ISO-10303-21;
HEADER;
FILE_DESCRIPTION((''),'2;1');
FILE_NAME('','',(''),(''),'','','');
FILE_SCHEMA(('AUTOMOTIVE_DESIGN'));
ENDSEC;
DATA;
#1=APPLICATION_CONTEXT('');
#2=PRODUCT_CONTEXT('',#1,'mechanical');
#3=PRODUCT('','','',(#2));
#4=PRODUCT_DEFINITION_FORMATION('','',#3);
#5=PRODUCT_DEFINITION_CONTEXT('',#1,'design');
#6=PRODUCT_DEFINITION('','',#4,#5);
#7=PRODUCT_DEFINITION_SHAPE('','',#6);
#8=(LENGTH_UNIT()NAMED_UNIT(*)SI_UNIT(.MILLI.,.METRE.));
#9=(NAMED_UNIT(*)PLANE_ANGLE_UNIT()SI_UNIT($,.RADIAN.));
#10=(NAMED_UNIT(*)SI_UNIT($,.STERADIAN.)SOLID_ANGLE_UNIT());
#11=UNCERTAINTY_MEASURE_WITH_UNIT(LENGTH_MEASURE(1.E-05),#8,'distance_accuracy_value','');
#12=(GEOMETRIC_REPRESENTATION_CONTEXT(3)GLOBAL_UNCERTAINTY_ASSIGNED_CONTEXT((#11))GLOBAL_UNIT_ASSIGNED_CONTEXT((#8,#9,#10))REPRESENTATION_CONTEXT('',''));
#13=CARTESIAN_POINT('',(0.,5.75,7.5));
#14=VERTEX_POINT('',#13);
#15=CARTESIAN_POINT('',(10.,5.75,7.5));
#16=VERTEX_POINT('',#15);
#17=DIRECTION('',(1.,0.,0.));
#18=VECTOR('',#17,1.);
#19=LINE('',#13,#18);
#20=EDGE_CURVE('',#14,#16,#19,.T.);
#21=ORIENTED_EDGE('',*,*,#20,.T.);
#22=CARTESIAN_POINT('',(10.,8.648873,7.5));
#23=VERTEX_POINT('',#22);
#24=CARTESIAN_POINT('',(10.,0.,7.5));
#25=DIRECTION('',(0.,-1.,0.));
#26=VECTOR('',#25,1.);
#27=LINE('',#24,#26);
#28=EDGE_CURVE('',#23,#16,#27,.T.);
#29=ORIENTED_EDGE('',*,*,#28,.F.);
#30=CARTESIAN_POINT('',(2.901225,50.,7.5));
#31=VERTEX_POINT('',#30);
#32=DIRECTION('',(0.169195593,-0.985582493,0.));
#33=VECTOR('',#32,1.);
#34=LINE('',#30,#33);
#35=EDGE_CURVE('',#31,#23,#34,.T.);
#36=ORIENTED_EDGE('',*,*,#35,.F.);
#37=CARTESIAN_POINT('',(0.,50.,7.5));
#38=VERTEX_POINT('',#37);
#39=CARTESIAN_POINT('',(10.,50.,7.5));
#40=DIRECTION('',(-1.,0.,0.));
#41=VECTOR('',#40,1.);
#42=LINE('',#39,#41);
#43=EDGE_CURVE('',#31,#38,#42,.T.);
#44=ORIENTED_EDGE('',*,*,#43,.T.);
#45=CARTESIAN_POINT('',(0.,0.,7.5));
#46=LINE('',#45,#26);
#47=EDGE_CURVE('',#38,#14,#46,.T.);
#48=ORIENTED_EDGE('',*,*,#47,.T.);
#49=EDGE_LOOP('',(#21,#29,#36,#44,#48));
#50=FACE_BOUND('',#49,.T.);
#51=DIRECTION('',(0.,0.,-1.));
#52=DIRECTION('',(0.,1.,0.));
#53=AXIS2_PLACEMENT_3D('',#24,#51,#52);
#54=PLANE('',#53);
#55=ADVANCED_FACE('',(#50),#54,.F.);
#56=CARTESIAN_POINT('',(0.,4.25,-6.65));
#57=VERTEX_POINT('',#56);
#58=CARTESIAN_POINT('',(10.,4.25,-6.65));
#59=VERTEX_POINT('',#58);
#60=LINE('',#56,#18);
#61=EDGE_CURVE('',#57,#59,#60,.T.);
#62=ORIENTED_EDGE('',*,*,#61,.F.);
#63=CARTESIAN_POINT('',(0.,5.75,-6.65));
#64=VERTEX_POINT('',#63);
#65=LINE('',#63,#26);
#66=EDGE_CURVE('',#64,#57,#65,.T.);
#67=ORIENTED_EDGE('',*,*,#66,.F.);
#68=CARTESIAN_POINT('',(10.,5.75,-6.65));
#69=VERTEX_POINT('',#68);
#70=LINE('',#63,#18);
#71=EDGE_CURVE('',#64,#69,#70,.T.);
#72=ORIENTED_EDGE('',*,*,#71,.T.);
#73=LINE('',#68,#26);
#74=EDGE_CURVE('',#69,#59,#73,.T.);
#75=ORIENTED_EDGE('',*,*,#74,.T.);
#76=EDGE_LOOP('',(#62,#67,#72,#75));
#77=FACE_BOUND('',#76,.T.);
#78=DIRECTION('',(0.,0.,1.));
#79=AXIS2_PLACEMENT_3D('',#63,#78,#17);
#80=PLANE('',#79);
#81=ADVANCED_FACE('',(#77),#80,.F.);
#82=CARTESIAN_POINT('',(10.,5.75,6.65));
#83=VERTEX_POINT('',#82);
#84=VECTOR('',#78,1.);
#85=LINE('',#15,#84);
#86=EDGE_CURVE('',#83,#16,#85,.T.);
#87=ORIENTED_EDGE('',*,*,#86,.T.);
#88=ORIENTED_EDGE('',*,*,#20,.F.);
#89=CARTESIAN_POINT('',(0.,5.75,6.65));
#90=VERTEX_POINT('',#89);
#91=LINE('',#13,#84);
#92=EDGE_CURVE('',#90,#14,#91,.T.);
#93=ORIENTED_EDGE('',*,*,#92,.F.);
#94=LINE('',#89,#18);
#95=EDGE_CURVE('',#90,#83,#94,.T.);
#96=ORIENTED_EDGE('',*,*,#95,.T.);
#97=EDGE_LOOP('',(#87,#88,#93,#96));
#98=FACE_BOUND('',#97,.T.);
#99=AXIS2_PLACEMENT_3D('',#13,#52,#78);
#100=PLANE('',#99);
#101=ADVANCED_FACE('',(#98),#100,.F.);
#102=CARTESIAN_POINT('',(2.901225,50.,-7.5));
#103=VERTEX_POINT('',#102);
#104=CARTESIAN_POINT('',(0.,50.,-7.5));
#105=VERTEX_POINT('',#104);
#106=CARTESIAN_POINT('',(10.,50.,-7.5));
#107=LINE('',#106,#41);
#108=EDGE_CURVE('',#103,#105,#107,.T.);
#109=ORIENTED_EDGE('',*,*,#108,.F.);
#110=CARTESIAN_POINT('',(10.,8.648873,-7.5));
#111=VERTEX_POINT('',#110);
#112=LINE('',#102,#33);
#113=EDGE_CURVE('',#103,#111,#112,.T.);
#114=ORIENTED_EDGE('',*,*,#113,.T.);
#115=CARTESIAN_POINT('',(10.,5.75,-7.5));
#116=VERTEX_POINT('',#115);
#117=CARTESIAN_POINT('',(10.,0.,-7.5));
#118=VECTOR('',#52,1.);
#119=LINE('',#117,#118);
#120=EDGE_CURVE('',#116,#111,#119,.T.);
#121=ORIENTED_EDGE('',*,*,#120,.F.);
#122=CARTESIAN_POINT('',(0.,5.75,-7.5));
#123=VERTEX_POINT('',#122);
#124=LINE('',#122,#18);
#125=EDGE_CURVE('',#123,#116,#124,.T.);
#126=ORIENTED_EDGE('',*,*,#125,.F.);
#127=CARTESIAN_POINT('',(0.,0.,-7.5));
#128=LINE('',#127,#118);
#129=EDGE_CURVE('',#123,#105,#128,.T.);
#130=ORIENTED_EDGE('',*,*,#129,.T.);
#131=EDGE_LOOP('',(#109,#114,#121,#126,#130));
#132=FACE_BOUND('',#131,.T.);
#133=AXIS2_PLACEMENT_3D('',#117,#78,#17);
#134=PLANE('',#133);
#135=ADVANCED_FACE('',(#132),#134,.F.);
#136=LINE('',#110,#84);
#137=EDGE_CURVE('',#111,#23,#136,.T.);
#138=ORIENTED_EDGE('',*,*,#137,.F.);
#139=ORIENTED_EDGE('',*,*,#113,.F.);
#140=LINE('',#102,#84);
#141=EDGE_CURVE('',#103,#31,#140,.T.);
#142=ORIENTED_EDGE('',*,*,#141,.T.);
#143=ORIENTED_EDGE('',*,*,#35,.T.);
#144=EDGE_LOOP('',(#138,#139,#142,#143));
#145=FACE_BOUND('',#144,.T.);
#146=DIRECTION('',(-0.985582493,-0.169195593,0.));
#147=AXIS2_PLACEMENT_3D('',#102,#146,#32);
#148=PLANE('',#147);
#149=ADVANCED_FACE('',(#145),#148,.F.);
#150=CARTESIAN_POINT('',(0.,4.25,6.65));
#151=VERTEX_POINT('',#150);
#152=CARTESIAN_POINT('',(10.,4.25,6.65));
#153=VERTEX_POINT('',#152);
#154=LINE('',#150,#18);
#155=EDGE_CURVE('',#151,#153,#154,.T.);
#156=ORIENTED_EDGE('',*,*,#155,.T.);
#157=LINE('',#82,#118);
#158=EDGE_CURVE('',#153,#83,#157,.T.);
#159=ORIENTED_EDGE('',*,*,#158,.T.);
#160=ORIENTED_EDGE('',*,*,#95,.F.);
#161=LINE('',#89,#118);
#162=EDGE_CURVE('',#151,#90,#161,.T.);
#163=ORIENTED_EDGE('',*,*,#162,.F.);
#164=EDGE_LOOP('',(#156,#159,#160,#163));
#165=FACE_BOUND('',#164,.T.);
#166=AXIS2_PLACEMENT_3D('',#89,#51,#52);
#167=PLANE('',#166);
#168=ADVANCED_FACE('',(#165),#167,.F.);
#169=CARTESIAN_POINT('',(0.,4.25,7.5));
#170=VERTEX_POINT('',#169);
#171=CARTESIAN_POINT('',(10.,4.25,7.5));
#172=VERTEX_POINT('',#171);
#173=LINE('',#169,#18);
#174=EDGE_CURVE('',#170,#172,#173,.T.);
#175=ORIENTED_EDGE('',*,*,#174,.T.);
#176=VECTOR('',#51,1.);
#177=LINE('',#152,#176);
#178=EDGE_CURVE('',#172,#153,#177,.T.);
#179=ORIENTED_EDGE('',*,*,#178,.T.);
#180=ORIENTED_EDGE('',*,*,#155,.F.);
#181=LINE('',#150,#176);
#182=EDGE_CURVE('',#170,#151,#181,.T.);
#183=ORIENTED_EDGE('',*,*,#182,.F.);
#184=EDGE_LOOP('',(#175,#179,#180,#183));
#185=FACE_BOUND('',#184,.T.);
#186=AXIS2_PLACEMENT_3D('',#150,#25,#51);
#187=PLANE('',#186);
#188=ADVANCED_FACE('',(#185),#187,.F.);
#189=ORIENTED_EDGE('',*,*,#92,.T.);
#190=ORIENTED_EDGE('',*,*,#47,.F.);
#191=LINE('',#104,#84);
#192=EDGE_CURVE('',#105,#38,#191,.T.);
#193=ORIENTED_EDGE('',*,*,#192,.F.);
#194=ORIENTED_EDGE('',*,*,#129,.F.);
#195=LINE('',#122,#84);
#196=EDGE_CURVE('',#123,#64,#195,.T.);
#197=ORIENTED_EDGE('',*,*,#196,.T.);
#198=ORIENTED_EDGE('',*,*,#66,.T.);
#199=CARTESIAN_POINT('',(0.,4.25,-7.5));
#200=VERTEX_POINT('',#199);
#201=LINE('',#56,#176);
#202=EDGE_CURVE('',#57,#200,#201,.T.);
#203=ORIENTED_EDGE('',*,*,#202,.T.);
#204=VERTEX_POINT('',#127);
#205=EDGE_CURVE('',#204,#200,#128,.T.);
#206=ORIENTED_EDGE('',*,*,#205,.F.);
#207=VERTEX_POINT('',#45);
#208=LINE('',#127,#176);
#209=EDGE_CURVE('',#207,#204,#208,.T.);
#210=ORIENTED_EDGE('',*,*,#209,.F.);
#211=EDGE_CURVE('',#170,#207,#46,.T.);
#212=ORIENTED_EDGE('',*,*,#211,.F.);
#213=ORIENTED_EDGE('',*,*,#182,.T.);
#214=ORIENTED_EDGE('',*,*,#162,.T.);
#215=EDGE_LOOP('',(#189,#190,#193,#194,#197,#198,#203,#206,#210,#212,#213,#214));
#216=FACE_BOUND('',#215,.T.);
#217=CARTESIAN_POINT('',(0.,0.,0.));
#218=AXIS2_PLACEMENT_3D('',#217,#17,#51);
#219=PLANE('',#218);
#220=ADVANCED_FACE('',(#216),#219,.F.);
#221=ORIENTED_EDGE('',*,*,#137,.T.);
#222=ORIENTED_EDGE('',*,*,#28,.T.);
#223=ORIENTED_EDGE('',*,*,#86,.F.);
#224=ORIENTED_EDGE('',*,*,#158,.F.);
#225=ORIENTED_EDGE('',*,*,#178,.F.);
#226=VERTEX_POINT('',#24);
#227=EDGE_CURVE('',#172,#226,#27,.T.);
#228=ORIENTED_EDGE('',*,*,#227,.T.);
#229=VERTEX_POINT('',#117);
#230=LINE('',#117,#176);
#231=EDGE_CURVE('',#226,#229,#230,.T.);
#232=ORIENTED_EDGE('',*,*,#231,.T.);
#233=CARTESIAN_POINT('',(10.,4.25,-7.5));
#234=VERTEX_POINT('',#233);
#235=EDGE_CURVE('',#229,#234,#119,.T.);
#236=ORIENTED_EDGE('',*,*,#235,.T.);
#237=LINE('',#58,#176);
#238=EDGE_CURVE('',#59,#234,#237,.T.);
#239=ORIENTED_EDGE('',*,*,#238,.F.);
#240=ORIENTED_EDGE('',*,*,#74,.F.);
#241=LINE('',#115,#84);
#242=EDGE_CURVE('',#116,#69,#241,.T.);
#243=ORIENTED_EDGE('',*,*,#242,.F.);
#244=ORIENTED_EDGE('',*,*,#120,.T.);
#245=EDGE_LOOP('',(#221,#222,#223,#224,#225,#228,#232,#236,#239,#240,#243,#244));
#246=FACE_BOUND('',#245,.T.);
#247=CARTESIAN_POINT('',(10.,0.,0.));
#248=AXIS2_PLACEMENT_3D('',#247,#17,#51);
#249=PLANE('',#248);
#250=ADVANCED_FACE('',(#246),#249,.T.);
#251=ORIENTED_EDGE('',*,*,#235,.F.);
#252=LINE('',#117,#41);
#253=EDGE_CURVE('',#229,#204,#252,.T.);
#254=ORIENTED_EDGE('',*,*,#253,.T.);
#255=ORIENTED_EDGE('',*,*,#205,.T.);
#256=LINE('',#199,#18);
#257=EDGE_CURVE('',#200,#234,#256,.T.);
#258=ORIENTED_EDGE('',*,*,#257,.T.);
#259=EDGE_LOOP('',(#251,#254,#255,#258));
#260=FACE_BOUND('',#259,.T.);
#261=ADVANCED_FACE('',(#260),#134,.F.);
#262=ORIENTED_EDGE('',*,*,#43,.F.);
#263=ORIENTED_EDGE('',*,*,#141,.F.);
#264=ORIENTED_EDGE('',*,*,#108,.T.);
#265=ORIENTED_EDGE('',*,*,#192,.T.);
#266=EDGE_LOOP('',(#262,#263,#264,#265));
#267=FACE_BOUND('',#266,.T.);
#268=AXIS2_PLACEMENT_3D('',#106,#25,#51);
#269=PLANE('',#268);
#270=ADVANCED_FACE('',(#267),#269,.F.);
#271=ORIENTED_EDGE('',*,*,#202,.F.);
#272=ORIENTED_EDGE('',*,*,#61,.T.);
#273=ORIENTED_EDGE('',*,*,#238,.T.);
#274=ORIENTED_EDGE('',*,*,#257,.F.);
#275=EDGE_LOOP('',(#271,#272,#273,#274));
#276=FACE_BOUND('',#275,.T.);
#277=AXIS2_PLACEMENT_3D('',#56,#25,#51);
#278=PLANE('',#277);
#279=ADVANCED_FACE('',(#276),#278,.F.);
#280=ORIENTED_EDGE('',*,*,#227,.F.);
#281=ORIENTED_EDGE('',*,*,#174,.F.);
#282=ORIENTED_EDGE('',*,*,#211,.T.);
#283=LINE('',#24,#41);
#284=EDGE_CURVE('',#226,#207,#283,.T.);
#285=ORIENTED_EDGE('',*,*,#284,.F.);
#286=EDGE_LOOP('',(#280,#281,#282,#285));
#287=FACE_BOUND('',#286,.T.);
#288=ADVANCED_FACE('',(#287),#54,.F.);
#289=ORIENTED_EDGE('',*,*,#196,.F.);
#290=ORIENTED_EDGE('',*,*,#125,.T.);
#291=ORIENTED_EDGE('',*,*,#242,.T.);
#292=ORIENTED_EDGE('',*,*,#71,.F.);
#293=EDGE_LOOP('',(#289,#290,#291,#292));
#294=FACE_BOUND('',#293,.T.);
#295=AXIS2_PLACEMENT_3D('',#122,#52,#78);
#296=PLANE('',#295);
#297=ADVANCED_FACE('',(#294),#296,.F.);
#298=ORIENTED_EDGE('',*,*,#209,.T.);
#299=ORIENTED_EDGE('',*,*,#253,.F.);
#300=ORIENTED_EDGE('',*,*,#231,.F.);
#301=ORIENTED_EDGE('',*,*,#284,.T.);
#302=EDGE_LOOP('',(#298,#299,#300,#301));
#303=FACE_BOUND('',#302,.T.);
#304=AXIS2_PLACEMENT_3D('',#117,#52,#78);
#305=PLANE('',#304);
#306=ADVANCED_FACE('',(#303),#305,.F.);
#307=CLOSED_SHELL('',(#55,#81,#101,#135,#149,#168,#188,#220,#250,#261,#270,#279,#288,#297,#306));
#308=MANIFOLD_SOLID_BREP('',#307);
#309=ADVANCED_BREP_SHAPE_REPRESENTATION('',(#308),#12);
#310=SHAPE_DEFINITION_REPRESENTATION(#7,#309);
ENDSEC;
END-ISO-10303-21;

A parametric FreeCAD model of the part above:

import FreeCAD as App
import Part
import Sketcher

V = App.Vector

doc = App.newDocument("Part")
body = doc.addObject("PartDesign::Body", "Body")

sketch1 = body.newObject("Sketcher::SketchObject", "Sketch")
sketch1.AttachmentSupport = (doc.getObject("YZ_Plane"), [""])
sketch1.MapMode = "FlatFace"
sketch1.addGeometry(Part.LineSegment(V(50, 7.5, 0), V(0, 7.5, 0)), False)
sketch1.addGeometry(Part.LineSegment(V(0, 7.5, 0), V(0, -7.5, 0)), False)
sketch1.addGeometry(Part.LineSegment(V(0, -7.5, 0), V(50, -7.5, 0)), False)
sketch1.addGeometry(Part.LineSegment(V(50, -7.5, 0), V(50, 7.5, 0)), False)
sketch1.addConstraint(Sketcher.Constraint("Coincident", 0, 2, 1, 1))
sketch1.addConstraint(Sketcher.Constraint("Coincident", 1, 2, 2, 1))
sketch1.addConstraint(Sketcher.Constraint("Coincident", 2, 2, 3, 1))
sketch1.addConstraint(Sketcher.Constraint("Coincident", 3, 2, 0, 1))
sketch1.addConstraint(Sketcher.Constraint("Horizontal", 0))
sketch1.addConstraint(Sketcher.Constraint("Vertical", 1))
sketch1.addConstraint(Sketcher.Constraint("Horizontal", 2))
sketch1.addConstraint(Sketcher.Constraint("Vertical", 3))
sketch1.addConstraint(Sketcher.Constraint("Symmetric", 0, 2, 1, 2, -1, 1))
sketch1.addConstraint(Sketcher.Constraint("DistanceX", 0, 2, 0, 1, 50.0))
sketch1.addConstraint(Sketcher.Constraint("DistanceY", 1, 2, 1, 1, 15.0))
pad1 = body.newObject("PartDesign::Pad", "Pad")
pad1.Profile = sketch1
pad1.Length = 10

sketch2 = body.newObject("Sketcher::SketchObject", "Sketch001")
sketch2.AttachmentSupport = (doc.getObject("YZ_Plane"), [""])
sketch2.MapMode = "FlatFace"
sketch2.AttachmentOffset = App.Placement(V(0, 0, 10), App.Rotation())
sketch2.addGeometry(Part.LineSegment(V(5.75, 7.5, 0), V(4.25, 7.5, 0)), False)
sketch2.addGeometry(Part.LineSegment(V(4.25, 7.5, 0), V(4.25, 6.65, 0)), False)
sketch2.addGeometry(Part.LineSegment(V(4.25, 6.65, 0), V(5.75, 6.65, 0)), False)
sketch2.addGeometry(Part.LineSegment(V(5.75, 6.65, 0), V(5.75, 7.5, 0)), False)
sketch2.addGeometry(Part.LineSegment(V(5.75, -6.65, 0), V(4.25, -6.65, 0)), False)
sketch2.addGeometry(Part.LineSegment(V(4.25, -6.65, 0), V(4.25, -7.5, 0)), False)
sketch2.addGeometry(Part.LineSegment(V(4.25, -7.5, 0), V(5.75, -7.5, 0)), False)
sketch2.addGeometry(Part.LineSegment(V(5.75, -7.5, 0), V(5.75, -6.65, 0)), False)
sketch2.addConstraint(Sketcher.Constraint("Coincident", 0, 2, 1, 1))
sketch2.addConstraint(Sketcher.Constraint("Coincident", 1, 2, 2, 1))
sketch2.addConstraint(Sketcher.Constraint("Coincident", 2, 2, 3, 1))
sketch2.addConstraint(Sketcher.Constraint("Coincident", 3, 2, 0, 1))
sketch2.addConstraint(Sketcher.Constraint("Coincident", 4, 2, 5, 1))
sketch2.addConstraint(Sketcher.Constraint("Coincident", 5, 2, 6, 1))
sketch2.addConstraint(Sketcher.Constraint("Coincident", 6, 2, 7, 1))
sketch2.addConstraint(Sketcher.Constraint("Coincident", 7, 2, 4, 1))
sketch2.addConstraint(Sketcher.Constraint("Horizontal", 0))
sketch2.addConstraint(Sketcher.Constraint("Vertical", 1))
sketch2.addConstraint(Sketcher.Constraint("Horizontal", 2))
sketch2.addConstraint(Sketcher.Constraint("Vertical", 3))
sketch2.addConstraint(Sketcher.Constraint("Horizontal", 4))
sketch2.addConstraint(Sketcher.Constraint("Vertical", 5))
sketch2.addConstraint(Sketcher.Constraint("Horizontal", 6))
sketch2.addConstraint(Sketcher.Constraint("Vertical", 7))
sketch2.addConstraint(Sketcher.Constraint("Symmetric", 1, 2, 4, 2, -1))
sketch2.addConstraint(Sketcher.Constraint("Symmetric", 3, 2, 6, 2, -1))
sketch2.addConstraint(Sketcher.Constraint("DistanceX", 0, 2, 0, 1, 1.5))
sketch2.addConstraint(Sketcher.Constraint("DistanceY", 5, 2, 0, 2, 15.0))
sketch2.addConstraint(Sketcher.Constraint("DistanceY", 1, 2, 1, 1, 0.85))
sketch2.addConstraint(Sketcher.Constraint("DistanceX", -1, 1, 0, 2, 4.25))
pocket1 = body.newObject("PartDesign::Pocket", "Pocket")
pocket1.Profile = sketch2
pocket1.Type = "ThroughAll"

sketch3 = body.newObject("Sketcher::SketchObject", "Sketch002")
sketch3.AttachmentSupport = (doc.getObject("XY_Plane"), [""])
sketch3.MapMode = "FlatFace"
sketch3.AttachmentOffset = App.Placement(V(0, 0, 7.5), App.Rotation())
sketch3.addGeometry(Part.LineSegment(V(2.901225, 50, 0), V(10, 8.648873, 0)), False)
sketch3.addGeometry(Part.LineSegment(V(10, 8.648873, 0), V(10, 50, 0)), False)
sketch3.addGeometry(Part.LineSegment(V(10, 50, 0), V(2.901225, 50, 0)), False)
sketch3.addConstraint(Sketcher.Constraint("Coincident", 0, 2, 1, 1))
sketch3.addConstraint(Sketcher.Constraint("Coincident", 1, 2, 2, 1))
sketch3.addConstraint(Sketcher.Constraint("Coincident", 2, 2, 0, 1))
sketch3.addConstraint(Sketcher.Constraint("Vertical", 1))
sketch3.addConstraint(Sketcher.Constraint("Horizontal", 2))
sketch3.addConstraint(Sketcher.Constraint("DistanceX", -1, 1, 0, 2, 10.0))
sketch3.addConstraint(Sketcher.Constraint("DistanceY", -1, 1, 1, 2, 50.0))
sketch3.addConstraint(Sketcher.Constraint("Distance", 0, 41.956028))
sketch3.addConstraint(Sketcher.Constraint("DistanceX", 2, 2, 2, 1, 7.098775))
pocket2 = body.newObject("PartDesign::Pocket", "Pocket001")
pocket2.Profile = sketch3
pocket2.Type = "ThroughAll"

doc.recompute()
